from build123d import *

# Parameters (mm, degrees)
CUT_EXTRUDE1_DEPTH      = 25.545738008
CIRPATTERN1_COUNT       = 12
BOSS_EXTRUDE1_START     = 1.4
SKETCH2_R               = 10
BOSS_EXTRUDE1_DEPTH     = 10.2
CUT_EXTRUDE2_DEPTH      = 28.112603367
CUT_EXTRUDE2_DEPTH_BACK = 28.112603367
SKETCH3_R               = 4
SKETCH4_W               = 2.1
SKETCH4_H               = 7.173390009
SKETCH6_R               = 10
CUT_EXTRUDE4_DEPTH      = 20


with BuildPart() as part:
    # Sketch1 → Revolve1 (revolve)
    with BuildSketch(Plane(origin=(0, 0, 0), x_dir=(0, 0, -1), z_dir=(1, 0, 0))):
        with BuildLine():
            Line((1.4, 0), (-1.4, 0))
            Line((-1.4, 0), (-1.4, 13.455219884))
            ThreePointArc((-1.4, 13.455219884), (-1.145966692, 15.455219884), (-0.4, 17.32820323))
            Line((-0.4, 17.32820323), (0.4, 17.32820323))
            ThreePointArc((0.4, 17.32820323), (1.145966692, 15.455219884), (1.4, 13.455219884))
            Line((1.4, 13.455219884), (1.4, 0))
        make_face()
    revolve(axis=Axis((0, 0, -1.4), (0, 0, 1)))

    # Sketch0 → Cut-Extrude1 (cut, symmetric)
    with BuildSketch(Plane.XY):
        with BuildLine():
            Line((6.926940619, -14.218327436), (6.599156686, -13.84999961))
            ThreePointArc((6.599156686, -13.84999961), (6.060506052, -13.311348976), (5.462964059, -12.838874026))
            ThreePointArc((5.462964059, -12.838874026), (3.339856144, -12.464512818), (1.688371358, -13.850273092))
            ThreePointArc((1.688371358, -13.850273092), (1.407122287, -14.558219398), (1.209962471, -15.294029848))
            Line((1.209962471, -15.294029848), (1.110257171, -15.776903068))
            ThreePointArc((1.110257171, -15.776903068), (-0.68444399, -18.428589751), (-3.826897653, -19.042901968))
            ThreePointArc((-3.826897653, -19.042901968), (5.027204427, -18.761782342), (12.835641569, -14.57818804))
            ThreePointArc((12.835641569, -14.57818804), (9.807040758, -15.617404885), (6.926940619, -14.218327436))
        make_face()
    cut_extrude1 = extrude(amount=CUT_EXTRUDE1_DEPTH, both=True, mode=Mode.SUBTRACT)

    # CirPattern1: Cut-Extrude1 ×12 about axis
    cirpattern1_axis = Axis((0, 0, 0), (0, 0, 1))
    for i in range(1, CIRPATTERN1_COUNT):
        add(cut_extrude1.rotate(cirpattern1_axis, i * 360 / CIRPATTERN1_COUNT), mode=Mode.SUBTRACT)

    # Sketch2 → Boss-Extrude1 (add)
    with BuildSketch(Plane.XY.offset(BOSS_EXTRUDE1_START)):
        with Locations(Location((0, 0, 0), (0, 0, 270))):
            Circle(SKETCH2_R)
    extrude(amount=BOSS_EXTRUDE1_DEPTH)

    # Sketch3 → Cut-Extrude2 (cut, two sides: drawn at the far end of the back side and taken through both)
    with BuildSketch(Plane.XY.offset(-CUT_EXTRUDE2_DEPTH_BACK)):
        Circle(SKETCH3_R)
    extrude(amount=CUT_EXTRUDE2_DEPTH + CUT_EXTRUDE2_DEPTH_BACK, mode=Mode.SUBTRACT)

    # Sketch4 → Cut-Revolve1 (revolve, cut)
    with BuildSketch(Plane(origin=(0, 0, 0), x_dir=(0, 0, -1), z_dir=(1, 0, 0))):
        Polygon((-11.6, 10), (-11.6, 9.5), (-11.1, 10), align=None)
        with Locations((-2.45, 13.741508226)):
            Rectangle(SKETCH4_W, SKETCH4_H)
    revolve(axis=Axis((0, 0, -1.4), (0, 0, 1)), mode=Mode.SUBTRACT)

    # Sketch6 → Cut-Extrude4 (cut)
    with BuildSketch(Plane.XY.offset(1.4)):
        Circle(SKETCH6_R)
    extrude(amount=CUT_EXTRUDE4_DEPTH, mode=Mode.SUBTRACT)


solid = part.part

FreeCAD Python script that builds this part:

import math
import FreeCAD as App
import Part
import Sketcher

V = App.Vector
Q = App.Units.Quantity


def add_polygon(sketch, points):
    """Adds a closed chain of lines whose ends are joined by coincident constraints."""
    first, n = sketch.GeometryCount, len(points)
    for a, b in zip(points, points[1:] + points[:1]):
        sketch.addGeometry(Part.LineSegment(App.Vector(*a, 0), App.Vector(*b, 0)), False)
    for i in range(n):
        sketch.addConstraint(Sketcher.Constraint("Coincident", first + i, 2, first + (i + 1) % n, 1))

doc = App.newDocument("Part")
params = doc.addObject("Spreadsheet::Sheet", "Params")
for row, (alias, value) in enumerate([
    ("sketch1_radius", "8 mm"),
    ("sketch1_height", "2.8 mm"),
    ("sketch1_height2", "0.8 mm"),
    ("revolution_angle", "360 deg"),
    ("pocket1_length", "51.091476 mm"),
    ("sketch3_diameter", "20 mm"),
    ("pad1_length", "10.2 mm"),
    ("sketch4_diameter", "8 mm"),
    ("sketch5_width", "0.5 mm"),
    ("sketch5_height", "2.1 mm"),
    ("groove_angle", "360 deg"),
    ("sketch6_diameter", "20 mm"),
    ("pocket3_length", "20 mm"),
], start=1):
    params.set(f"A{row}", alias)
    params.set(f"B{row}", "=" + value)
    params.setAlias(f"B{row}", alias)

body = doc.addObject("PartDesign::Body", "Body")

# Sketch on YZ plane
sketch1 = body.newObject("Sketcher::SketchObject", "Sketch")
sketch1.AttachmentSupport = (doc.getObject("YZ_Plane"), [""])
sketch1.MapMode = "FlatFace"
sketch1.addGeometry(Part.LineSegment(V(0, 1.4, 0), V(0, -1.4, 0)), False)
sketch1.addGeometry(Part.LineSegment(V(0, -1.4, 0), V(13.5, -1.4, 0)), False)
sketch1.addGeometry(Part.ArcOfCircle(Part.Circle(V(13.5, 6.6, 0), V(0, 0, 1), 8), math.radians(-90), math.radians(-61)), False)
sketch1.addGeometry(Part.LineSegment(V(17.3, -0.4, 0), V(17.3, 0.4, 0)), False)
sketch1.addGeometry(Part.ArcOfCircle(Part.Circle(V(13.5, -6.6, 0), V(0, 0, 1), 8), math.radians(61), math.radians(90)), False)
sketch1.addGeometry(Part.LineSegment(V(13.5, 1.4, 0), V(0, 1.4, 0)), False)
sketch1.addConstraint(Sketcher.Constraint("Coincident", 0, 2, 1, 1))
sketch1.addConstraint(Sketcher.Constraint("Tangent", 1, 2, 2, 1))
sketch1.addConstraint(Sketcher.Constraint("Coincident", 2, 2, 3, 1))
sketch1.addConstraint(Sketcher.Constraint("Coincident", 3, 2, 4, 1))
sketch1.addConstraint(Sketcher.Constraint("Tangent", 4, 2, 5, 1))
sketch1.addConstraint(Sketcher.Constraint("Coincident", 5, 2, 0, 1))
sketch1.addConstraint(Sketcher.Constraint("Vertical", 0))
sketch1.addConstraint(Sketcher.Constraint("Horizontal", 1))
sketch1.addConstraint(Sketcher.Constraint("Vertical", 3))
sketch1.addConstraint(Sketcher.Constraint("Horizontal", 5))
sketch1.addConstraint(Sketcher.Constraint("Equal", 2, 4))
sketch1.addConstraint(Sketcher.Constraint("Symmetric", 0, 2, 5, 2, -1, 1))
sketch1.addConstraint(Sketcher.Constraint("Vertical", 2, 3, 4, 3))
sketch1.addConstraint(Sketcher.Constraint("Radius", 2, Q("8 mm")))
sketch1.addConstraint(Sketcher.Constraint("DistanceY", 0, 2, 0, 1, Q("2.8 mm")))
sketch1.addConstraint(Sketcher.Constraint("DistanceY", 3, 1, 3, 2, Q("0.8 mm")))
sketch1.addConstraint(Sketcher.Constraint("DistanceX", 1, 1, 1, 2, Q("13.45522 mm")))
sketch1.setExpression("Constraints[13]", "Params.sketch1_radius")
sketch1.setExpression("Constraints[14]", "Params.sketch1_height")
sketch1.setExpression("Constraints[15]", "Params.sketch1_height2")
revolution = body.newObject("PartDesign::Revolution", "Revolution")
revolution.Profile = sketch1
revolution.ReferenceAxis = (sketch1, ["V_Axis"])
revolution.setExpression("Angle", "Params.revolution_angle")

# Sketch on XY plane
sketch2 = body.newObject("Sketcher::SketchObject", "Sketch001")
sketch2.AttachmentSupport = (doc.getObject("XY_Plane"), [""])
sketch2.MapMode = "FlatFace"
sketch2.addGeometry(Part.LineSegment(V(6.93, -14.22, 0), V(6.6, -13.85, 0)), False)
sketch2.addGeometry(Part.ArcOfCircle(Part.Circle(V(1.71, -18.2, 0), V(0, 0, 1), 6.55), math.radians(41.67), math.radians(55)), False)
sketch2.addGeometry(Part.ArcOfCircle(Part.Circle(V(4, -14.93, 0), V(0, 0, 1), 2.55), math.radians(55), math.radians(155)), False)
sketch2.addGeometry(Part.ArcOfCircle(Part.Circle(V(7.63, -16.62, 0), V(0, 0, 1), 6.55), math.radians(155), math.radians(168.33)), False)
sketch2.addGeometry(Part.LineSegment(V(1.21, -15.29, 0), V(1.11, -15.78, 0)), False)
sketch2.addGeometry(Part.ArcOfCircle(Part.Circle(V(-3, -14.93, 0), V(0, 0, 1), 4.2), math.radians(-101), math.radians(-12)), False)
sketch2.addGeometry(Part.ArcOfCircle(Part.Circle(V(0, 0, 0), V(0, 0, 1), 19.42), math.radians(-101), math.radians(-49)), False)
sketch2.addGeometry(Part.ArcOfCircle(Part.Circle(V(10.06, -11.43, 0), V(0, 0, 1), 4.2), math.radians(-138), math.radians(-49)), False)
sketch2.addConstraint(Sketcher.Constraint("Tangent", 0, 2, 1, 1))
sketch2.addConstraint(Sketcher.Constraint("Tangent", 1, 2, 2, 1))
sketch2.addConstraint(Sketcher.Constraint("Tangent", 2, 2, 3, 1))
sketch2.addConstraint(Sketcher.Constraint("Tangent", 3, 2, 4, 1))
sketch2.addConstraint(Sketcher.Constraint("Tangent", 4, 2, 5, 2))
sketch2.addConstraint(Sketcher.Constraint("Tangent", 5, 1, 6, 1))
sketch2.addConstraint(Sketcher.Constraint("Tangent", 6, 2, 7, 2))
sketch2.addConstraint(Sketcher.Constraint("Tangent", 7, 1, 0, 1))
sketch2.addConstraint(Sketcher.Constraint("Coincident", 6, 3, -1, 1))
sketch2.addConstraint(Sketcher.Constraint("Equal", 1, 3))
sketch2.addConstraint(Sketcher.Constraint("Equal", 5, 7))
sketch2.addConstraint(Sketcher.Constraint("Horizontal", 2, 3, 5, 3))
sketch2.addConstraint(Sketcher.Constraint("Equal", 0, 4))
sketch2.addConstraint(Sketcher.Constraint("DistanceX", -1, 1, 2, 3, Q("4 mm")))
sketch2.addConstraint(Sketcher.Constraint("DistanceX", 5, 3, -1, 1, Q("3 mm")))
sketch2.addConstraint(Sketcher.Constraint("Radius", 1, Q("6.5506 mm")))
sketch2.addConstraint(Sketcher.Constraint("Radius", 2, Q("2.5506 mm")))
sketch2.addConstraint(Sketcher.Constraint("DistanceY", 2, 3, 7, 3, Q("3.5 mm")))
sketch2.addConstraint(Sketcher.Constraint("DistanceY", 0, 2, -1, 1, Q("13.85 mm")))
sketch2.addConstraint(Sketcher.Constraint("Radius", 5, Q("4.196964 mm")))
sketch2.addConstraint(Sketcher.Constraint("Radius", 6, Q("19.423626 mm")))
pocket1 = body.newObject("PartDesign::Pocket", "Pocket")
pocket1.Profile = sketch2
pocket1.setExpression("Length", "Params.pocket1_length")
pocket1.Midplane = True
doc.recompute()

polarpattern = body.newObject("PartDesign::PolarPattern", "PolarPattern")
polarpattern.Originals = [pocket1]
polarpattern.Axis = (doc.getObject("Z_Axis"), [""])
polarpattern.Angle = 360
polarpattern.Occurrences = 12
body.Tip = polarpattern

# Sketch on XY plane
sketch3 = body.newObject("Sketcher::SketchObject", "Sketch002")
sketch3.AttachmentSupport = (doc.getObject("XY_Plane"), [""])
sketch3.MapMode = "FlatFace"
sketch3.AttachmentOffset = App.Placement(V(0, 0, 1.4), App.Rotation())
sketch3.addGeometry(Part.Circle(V(0, 0, 0), V(0, 0, 1), 10), False)
sketch3.addConstraint(Sketcher.Constraint("Coincident", 0, 3, -1, 1))
sketch3.addConstraint(Sketcher.Constraint("Diameter", 0, Q("20 mm")))
sketch3.setExpression("Constraints[1]", "Params.sketch3_diameter")
pad1 = body.newObject("PartDesign::Pad", "Pad")
pad1.Profile = sketch3
pad1.setExpression("Length", "Params.pad1_length")

# Sketch on XY plane
sketch4 = body.newObject("Sketcher::SketchObject", "Sketch003")
sketch4.AttachmentSupport = (doc.getObject("XY_Plane"), [""])
sketch4.MapMode = "FlatFace"
sketch4.addGeometry(Part.Circle(V(0, 0, 0), V(0, 0, 1), 4), False)
sketch4.addConstraint(Sketcher.Constraint("Coincident", 0, 3, -1, 1))
sketch4.addConstraint(Sketcher.Constraint("Diameter", 0, Q("8 mm")))
sketch4.setExpression("Constraints[1]", "Params.sketch4_diameter")
pocket2 = body.newObject("PartDesign::Pocket", "Pocket001")
pocket2.Profile = sketch4
pocket2.Type = "ThroughAll"
pocket2.Midplane = True

# Sketch on YZ plane
sketch5 = body.newObject("Sketcher::SketchObject", "Sketch004")
sketch5.AttachmentSupport = (doc.getObject("YZ_Plane"), [""])
sketch5.MapMode = "FlatFace"
add_polygon(sketch5, [(10, 11.6), (9.5, 11.6), (10, 11.1)])  # lines 0-2
add_polygon(sketch5, [(17.3, 3.5), (10.2, 3.5), (10.2, 1.4), (17.3, 1.4)])  # lines 3-6
sketch5.addConstraint(Sketcher.Constraint("Horizontal", 0))
sketch5.addConstraint(Sketcher.Constraint("Vertical", 2))
sketch5.addConstraint(Sketcher.Constraint("Horizontal", 3))
sketch5.addConstraint(Sketcher.Constraint("Vertical", 4))
sketch5.addConstraint(Sketcher.Constraint("Horizontal", 5))
sketch5.addConstraint(Sketcher.Constraint("Vertical", 6))
sketch5.addConstraint(Sketcher.Constraint("Equal", 0, 2))
sketch5.addConstraint(Sketcher.Constraint("DistanceX", 0, 2, 0, 1, Q("0.5 mm")))
sketch5.addConstraint(Sketcher.Constraint("DistanceY", 4, 2, 4, 1, Q("2.1 mm")))
sketch5.addConstraint(Sketcher.Constraint("DistanceX", -1, 1, 1, 2, Q("10 mm")))
sketch5.addConstraint(Sketcher.Constraint("DistanceY", -1, 1, 0, 2, Q("11.6 mm")))
sketch5.addConstraint(Sketcher.Constraint("DistanceY", -1, 1, 3, 2, Q("3.5 mm")))
sketch5.addConstraint(Sketcher.Constraint("DistanceX", 3, 2, 3, 1, Q("7.17339 mm")))
sketch5.addConstraint(Sketcher.Constraint("DistanceX", -1, 1, 3, 2, Q("10.154813 mm")))
sketch5.setExpression("Constraints[14]", "Params.sketch5_width")
sketch5.setExpression("Constraints[15]", "Params.sketch5_height")
groove = body.newObject("PartDesign::Groove", "Groove")
groove.Profile = sketch5
groove.ReferenceAxis = (sketch5, ["V_Axis"])
groove.setExpression("Angle", "Params.groove_angle")

# Sketch on XY plane
sketch6 = body.newObject("Sketcher::SketchObject", "Sketch005")
sketch6.AttachmentSupport = (doc.getObject("XY_Plane"), [""])
sketch6.MapMode = "FlatFace"
sketch6.AttachmentOffset = App.Placement(V(0, 0, 1.4), App.Rotation())
sketch6.addGeometry(Part.Circle(V(0, 0, 0), V(0, 0, 1), 10), False)
sketch6.addConstraint(Sketcher.Constraint("Coincident", 0, 3, -1, 1))
sketch6.addConstraint(Sketcher.Constraint("Diameter", 0, Q("20 mm")))
sketch6.setExpression("Constraints[1]", "Params.sketch6_diameter")
pocket3 = body.newObject("PartDesign::Pocket", "Pocket002")
pocket3.Profile = sketch6
pocket3.setExpression("Length", "Params.pocket3_length")
pocket3.Reversed = True

doc.recompute()
